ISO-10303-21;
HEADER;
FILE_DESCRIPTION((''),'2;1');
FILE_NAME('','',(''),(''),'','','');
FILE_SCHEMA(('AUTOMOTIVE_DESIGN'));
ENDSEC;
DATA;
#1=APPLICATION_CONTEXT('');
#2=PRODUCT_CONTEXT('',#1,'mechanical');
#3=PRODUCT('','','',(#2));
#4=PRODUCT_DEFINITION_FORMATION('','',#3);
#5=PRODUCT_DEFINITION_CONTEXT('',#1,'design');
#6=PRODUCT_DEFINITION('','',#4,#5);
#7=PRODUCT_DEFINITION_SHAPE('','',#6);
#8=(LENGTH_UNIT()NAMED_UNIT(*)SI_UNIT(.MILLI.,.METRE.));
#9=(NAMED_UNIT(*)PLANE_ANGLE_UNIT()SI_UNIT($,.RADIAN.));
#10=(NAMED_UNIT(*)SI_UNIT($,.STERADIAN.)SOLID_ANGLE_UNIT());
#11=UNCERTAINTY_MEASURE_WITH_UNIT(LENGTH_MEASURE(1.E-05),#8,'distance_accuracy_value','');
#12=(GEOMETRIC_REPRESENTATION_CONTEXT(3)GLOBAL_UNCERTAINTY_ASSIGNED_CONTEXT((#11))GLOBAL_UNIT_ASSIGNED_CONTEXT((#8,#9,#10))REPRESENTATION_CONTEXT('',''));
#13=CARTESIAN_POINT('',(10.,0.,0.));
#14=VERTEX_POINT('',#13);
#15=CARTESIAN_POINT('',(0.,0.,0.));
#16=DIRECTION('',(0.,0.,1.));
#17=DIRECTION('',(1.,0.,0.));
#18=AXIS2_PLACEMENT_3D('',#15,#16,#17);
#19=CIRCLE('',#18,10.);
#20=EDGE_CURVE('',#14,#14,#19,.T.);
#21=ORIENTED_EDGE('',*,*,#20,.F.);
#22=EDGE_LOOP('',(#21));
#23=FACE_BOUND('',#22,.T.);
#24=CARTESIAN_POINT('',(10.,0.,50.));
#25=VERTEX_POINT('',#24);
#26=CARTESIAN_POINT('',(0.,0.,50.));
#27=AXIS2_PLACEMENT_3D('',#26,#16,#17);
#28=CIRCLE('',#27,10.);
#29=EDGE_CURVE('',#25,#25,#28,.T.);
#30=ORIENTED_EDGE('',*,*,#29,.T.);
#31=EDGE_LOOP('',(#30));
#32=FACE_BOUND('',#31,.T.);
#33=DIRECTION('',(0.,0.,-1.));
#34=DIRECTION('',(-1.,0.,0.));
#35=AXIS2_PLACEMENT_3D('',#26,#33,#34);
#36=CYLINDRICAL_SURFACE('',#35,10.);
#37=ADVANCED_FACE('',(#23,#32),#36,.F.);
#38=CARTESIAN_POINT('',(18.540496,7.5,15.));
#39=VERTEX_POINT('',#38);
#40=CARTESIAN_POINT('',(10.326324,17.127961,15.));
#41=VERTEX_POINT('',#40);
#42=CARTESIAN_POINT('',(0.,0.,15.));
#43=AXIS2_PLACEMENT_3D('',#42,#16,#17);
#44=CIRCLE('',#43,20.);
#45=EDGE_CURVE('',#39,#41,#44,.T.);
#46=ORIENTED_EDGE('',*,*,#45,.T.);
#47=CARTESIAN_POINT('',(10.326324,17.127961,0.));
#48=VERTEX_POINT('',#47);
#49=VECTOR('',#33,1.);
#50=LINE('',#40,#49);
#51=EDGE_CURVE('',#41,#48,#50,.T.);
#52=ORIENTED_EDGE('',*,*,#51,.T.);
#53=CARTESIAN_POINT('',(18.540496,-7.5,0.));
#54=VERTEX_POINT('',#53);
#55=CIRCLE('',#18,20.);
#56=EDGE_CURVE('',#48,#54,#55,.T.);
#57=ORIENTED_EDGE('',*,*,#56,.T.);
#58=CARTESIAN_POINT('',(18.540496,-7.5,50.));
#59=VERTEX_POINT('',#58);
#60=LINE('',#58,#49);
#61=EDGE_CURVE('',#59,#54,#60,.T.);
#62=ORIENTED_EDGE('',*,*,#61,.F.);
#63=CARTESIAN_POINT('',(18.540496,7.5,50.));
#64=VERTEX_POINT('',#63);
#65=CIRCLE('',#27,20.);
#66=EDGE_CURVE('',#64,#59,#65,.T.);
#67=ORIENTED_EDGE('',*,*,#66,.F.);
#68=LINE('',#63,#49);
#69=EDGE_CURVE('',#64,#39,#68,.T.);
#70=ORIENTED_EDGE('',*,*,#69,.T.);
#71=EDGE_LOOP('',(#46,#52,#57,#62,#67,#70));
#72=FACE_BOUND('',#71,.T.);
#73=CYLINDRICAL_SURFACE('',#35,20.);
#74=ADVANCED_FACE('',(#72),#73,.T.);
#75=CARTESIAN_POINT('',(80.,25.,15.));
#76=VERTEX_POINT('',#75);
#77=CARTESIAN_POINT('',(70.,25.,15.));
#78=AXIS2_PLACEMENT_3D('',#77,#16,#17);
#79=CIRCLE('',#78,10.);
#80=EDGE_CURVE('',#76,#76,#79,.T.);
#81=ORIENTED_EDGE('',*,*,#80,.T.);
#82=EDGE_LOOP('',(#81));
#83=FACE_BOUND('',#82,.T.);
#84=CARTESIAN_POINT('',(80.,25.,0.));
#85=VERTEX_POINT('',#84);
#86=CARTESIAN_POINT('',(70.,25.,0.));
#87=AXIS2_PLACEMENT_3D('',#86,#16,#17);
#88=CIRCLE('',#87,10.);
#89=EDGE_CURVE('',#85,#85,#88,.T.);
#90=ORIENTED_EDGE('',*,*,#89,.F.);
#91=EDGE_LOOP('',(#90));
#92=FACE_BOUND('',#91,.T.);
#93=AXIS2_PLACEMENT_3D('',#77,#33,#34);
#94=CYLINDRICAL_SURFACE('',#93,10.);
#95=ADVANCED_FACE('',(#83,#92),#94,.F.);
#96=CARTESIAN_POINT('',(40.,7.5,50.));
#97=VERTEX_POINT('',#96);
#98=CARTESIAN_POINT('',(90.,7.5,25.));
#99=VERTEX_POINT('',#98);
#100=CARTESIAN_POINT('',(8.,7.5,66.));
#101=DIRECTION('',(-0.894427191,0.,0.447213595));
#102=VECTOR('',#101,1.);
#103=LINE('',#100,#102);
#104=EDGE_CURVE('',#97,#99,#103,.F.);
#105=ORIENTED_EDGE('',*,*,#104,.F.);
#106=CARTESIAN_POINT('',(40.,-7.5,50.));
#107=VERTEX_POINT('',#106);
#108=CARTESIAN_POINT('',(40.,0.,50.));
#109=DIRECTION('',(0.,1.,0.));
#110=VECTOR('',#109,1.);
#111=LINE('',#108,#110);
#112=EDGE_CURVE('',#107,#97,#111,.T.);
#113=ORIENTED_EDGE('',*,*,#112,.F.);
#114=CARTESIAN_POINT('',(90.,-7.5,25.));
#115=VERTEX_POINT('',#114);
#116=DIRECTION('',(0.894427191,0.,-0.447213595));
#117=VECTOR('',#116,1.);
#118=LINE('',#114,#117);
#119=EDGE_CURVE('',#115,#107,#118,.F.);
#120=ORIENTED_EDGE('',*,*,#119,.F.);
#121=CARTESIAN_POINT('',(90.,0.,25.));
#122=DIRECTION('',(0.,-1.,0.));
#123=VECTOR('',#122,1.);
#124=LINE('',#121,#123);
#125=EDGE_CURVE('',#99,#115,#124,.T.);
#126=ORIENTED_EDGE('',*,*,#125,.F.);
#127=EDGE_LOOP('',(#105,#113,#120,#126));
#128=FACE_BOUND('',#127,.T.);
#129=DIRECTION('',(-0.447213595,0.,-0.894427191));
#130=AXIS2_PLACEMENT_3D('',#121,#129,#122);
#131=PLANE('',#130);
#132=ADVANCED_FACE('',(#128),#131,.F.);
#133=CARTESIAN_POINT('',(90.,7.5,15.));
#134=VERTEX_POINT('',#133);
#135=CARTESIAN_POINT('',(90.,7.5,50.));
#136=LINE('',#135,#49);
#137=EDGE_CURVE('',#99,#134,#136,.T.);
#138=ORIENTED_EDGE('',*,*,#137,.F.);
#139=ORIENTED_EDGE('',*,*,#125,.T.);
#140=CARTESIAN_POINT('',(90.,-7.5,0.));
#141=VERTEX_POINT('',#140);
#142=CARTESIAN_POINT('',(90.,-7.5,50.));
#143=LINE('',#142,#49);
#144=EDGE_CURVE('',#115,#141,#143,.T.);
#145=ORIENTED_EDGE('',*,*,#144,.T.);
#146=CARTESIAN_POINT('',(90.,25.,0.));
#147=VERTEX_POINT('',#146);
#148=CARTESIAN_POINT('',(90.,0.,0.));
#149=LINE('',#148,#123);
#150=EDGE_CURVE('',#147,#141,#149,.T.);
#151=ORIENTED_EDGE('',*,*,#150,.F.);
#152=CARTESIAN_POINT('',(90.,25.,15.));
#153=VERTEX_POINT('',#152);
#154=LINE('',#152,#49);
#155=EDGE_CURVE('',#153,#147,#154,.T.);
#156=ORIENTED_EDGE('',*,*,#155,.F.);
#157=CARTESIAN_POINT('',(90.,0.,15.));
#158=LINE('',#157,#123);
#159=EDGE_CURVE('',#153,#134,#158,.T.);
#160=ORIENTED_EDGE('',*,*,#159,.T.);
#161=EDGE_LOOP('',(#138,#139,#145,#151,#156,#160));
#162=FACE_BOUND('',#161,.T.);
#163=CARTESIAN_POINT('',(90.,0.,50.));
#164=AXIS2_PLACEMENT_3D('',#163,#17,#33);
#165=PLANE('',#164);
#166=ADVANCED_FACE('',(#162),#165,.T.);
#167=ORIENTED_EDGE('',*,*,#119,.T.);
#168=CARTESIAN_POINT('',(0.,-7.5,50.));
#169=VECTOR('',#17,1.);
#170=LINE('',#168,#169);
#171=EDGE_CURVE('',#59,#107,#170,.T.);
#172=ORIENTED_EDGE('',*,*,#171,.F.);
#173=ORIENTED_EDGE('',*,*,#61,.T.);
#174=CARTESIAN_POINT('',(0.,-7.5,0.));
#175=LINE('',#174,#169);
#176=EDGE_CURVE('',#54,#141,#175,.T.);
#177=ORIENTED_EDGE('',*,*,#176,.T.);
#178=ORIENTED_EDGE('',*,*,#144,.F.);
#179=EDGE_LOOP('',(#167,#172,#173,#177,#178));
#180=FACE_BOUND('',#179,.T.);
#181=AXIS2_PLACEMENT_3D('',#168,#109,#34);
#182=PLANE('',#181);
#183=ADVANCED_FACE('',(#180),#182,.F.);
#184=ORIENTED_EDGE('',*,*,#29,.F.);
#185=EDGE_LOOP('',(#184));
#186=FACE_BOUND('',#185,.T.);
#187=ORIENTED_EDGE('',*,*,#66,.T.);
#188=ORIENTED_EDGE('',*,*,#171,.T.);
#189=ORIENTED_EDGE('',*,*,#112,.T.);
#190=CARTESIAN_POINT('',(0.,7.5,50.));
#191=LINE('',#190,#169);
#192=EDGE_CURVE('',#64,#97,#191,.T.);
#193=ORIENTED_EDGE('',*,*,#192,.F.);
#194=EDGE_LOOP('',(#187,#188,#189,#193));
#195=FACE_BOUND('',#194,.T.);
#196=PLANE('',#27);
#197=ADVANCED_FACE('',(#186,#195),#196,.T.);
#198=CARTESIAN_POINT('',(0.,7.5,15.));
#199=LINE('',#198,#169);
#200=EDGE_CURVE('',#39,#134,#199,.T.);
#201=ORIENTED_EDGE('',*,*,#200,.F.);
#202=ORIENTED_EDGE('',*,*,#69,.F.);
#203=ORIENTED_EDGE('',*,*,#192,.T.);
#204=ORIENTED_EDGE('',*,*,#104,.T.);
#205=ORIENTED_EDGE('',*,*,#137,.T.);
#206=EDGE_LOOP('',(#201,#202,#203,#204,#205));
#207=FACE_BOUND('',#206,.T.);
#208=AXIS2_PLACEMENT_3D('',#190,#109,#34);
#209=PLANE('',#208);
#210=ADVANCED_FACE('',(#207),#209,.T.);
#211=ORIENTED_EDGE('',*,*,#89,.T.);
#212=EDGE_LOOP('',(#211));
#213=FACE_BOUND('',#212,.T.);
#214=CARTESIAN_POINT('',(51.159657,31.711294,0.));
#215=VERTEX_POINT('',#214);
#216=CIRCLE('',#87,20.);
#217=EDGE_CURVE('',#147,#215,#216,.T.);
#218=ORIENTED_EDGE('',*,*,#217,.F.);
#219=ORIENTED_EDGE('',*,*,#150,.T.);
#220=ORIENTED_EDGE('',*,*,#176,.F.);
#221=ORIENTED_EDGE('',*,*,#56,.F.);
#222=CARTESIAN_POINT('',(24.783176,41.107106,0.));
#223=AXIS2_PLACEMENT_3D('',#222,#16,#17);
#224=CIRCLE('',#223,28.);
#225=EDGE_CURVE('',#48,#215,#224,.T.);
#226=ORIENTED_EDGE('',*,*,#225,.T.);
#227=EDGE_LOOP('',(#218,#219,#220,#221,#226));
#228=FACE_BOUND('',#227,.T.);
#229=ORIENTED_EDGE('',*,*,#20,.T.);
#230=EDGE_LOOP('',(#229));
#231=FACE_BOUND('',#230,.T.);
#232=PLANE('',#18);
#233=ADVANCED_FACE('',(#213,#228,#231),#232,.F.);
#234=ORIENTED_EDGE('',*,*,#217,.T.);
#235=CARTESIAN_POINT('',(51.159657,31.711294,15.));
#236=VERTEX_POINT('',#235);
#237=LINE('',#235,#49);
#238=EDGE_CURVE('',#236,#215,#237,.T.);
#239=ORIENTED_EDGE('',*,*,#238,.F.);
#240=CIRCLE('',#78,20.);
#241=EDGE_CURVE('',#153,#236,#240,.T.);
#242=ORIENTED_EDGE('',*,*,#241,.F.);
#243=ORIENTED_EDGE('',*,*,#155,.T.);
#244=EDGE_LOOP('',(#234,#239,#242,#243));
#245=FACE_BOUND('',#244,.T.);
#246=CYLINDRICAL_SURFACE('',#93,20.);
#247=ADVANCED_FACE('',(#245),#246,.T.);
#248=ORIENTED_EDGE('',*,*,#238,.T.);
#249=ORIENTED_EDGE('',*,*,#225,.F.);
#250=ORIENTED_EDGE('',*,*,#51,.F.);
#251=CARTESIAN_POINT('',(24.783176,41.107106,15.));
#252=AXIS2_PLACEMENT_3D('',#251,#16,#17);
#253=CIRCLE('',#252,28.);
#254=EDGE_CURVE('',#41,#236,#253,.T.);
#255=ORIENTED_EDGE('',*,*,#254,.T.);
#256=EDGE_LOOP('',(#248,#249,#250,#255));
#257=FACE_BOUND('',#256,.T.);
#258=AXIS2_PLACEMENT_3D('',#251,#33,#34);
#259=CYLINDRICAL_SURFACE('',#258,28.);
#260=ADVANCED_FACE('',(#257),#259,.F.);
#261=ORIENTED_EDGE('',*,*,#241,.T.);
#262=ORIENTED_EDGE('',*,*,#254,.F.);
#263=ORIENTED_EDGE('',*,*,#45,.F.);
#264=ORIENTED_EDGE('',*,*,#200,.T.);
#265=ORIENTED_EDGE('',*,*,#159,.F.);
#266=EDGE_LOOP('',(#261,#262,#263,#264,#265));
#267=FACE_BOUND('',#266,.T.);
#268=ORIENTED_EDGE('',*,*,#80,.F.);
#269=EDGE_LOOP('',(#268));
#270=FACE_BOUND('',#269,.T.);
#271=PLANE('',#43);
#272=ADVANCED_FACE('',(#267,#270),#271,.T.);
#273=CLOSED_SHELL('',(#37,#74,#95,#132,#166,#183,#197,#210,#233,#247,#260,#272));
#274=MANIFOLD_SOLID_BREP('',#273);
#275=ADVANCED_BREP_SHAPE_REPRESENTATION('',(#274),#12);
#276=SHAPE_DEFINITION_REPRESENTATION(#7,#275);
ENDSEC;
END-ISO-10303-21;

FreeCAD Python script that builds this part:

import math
import FreeCAD as App
import Part
import Sketcher
from FreeCAD import Vector


def edges_at(feature, points):
    """Names of the edges that pass closest to the given points."""
    edges = feature.Shape.Edges
    near = lambda p: min(range(len(edges)), key=lambda i: edges[i].distToShape(Part.Vertex(*p))[0])
    return sorted({f"Edge{near(p) + 1}" for p in points})

doc = App.newDocument("Part")
body = doc.addObject("PartDesign::Body", "Body")

sketch1 = body.newObject("Sketcher::SketchObject", "Sketch")
sketch1.AttachmentSupport = (doc.getObject("XY_Plane"), [""])
sketch1.MapMode = "FlatFace"
sketch1.addGeometry(Part.LineSegment(Vector(90, -8, 0), Vector(90, 8, 0)), False)
sketch1.addGeometry(Part.LineSegment(Vector(90, 8, 0), Vector(19, 8, 0)), False)
sketch1.addGeometry(Part.ArcOfCircle(Part.Circle(Vector(0, 0, 0), Vector(0, 0, 1), 20), math.radians(22), math.radians(59)), False)
sketch1.addGeometry(Part.ArcOfCircle(Part.Circle(Vector(0, 0, 0), Vector(0, 0, 1), 20), math.radians(59), math.radians(338)), False)
sketch1.addGeometry(Part.LineSegment(Vector(19, -8, 0), Vector(90, -8, 0)), False)
sketch1.addGeometry(Part.Circle(Vector(0, 0, 0), Vector(0, 0, 1), 10), False)
sketch1.addConstraint(Sketcher.Constraint("Coincident", 0, 2, 1, 1))
sketch1.addConstraint(Sketcher.Constraint("Coincident", 1, 2, 2, 1))
sketch1.addConstraint(Sketcher.Constraint("Tangent", 2, 2, 3, 1))
sketch1.addConstraint(Sketcher.Constraint("Coincident", 3, 2, 4, 1))
sketch1.addConstraint(Sketcher.Constraint("Coincident", 4, 2, 0, 1))
sketch1.addConstraint(Sketcher.Constraint("Vertical", 0))
sketch1.addConstraint(Sketcher.Constraint("Horizontal", 1))
sketch1.addConstraint(Sketcher.Constraint("Horizontal", 4))
sketch1.addConstraint(Sketcher.Constraint("Coincident", 2, 3, -1, 1))
sketch1.addConstraint(Sketcher.Constraint("Coincident", 5, 3, -1, 1))
sketch1.addConstraint(Sketcher.Constraint("Equal", 2, 3))
sketch1.addConstraint(Sketcher.Constraint("Vertical", 1, 2, 3, 2))
sketch1.addConstraint(Sketcher.Constraint("Diameter", 5, 20.0))
sketch1.addConstraint(Sketcher.Constraint("Radius", 2, 20.0))
sketch1.addConstraint(Sketcher.Constraint("DistanceY", 0, 1, 0, 2, 15.0))
sketch1.addConstraint(Sketcher.Constraint("DistanceX", -1, 1, 0, 2, 90.0))
sketch1.addConstraint(Sketcher.Constraint("DistanceY", -1, 1, 2, 2, 17.127961))
pad1 = body.newObject("PartDesign::Pad", "Pad")
pad1.Profile = sketch1
pad1.Length = 50

sketch2 = body.newObject("Sketcher::SketchObject", "Sketch001")
sketch2.AttachmentSupport = (doc.getObject("XY_Plane"), [""])
sketch2.MapMode = "FlatFace"
sketch2.addGeometry(Part.LineSegment(Vector(90, 8, 0), Vector(90, 25, 0)), False)
sketch2.addGeometry(Part.ArcOfCircle(Part.Circle(Vector(70, 25, 0), Vector(0, 0, 1), 20), math.radians(0), math.radians(160)), False)
sketch2.addGeometry(Part.ArcOfCircle(Part.Circle(Vector(25, 41, 0), Vector(0, 0, 1), 28), math.radians(-121), math.radians(-20)), False)
sketch2.addGeometry(Part.ArcOfCircle(Part.Circle(Vector(0, 0, 0), Vector(0, 0, 1), 20), math.radians(22), math.radians(59)), False)
sketch2.addGeometry(Part.LineSegment(Vector(19, 8, 0), Vector(90, 8, 0)), False)
sketch2.addGeometry(Part.Circle(Vector(70, 25, 0), Vector(0, 0, 1), 10), False)
sketch2.addConstraint(Sketcher.Constraint("Tangent", 0, 2, 1, 1))
sketch2.addConstraint(Sketcher.Constraint("Tangent", 1, 2, 2, 2))
sketch2.addConstraint(Sketcher.Constraint("Tangent", 2, 1, 3, 2))
sketch2.addConstraint(Sketcher.Constraint("Coincident", 3, 1, 4, 1))
sketch2.addConstraint(Sketcher.Constraint("Coincident", 4, 2, 0, 1))
sketch2.addConstraint(Sketcher.Constraint("Vertical", 0))
sketch2.addConstraint(Sketcher.Constraint("Horizontal", 4))
sketch2.addConstraint(Sketcher.Constraint("Coincident", 3, 3, -1, 1))
sketch2.addConstraint(Sketcher.Constraint("Coincident", 5, 3, 1, 3))
sketch2.addConstraint(Sketcher.Constraint("Equal", 1, 3))
sketch2.addConstraint(Sketcher.Constraint("Diameter", 5, 20.0))
sketch2.addConstraint(Sketcher.Constraint("Radius", 1, 20.0))
sketch2.addConstraint(Sketcher.Constraint("Radius", 2, 28.0))
sketch2.addConstraint(Sketcher.Constraint("DistanceY", 0, 1, 0, 2, 17.5))
sketch2.addConstraint(Sketcher.Constraint("DistanceX", -1, 1, 1, 3, 70.0))
sketch2.addConstraint(Sketcher.Constraint("DistanceY", -1, 1, 1, 3, 25.0))
pad2 = body.newObject("PartDesign::Pad", "Pad001")
pad2.Profile = sketch2
pad2.Length = 15
doc.recompute()

chamfer = body.newObject("PartDesign::Chamfer", "Chamfer")
chamfer.Base = (pad2, edges_at(pad2, [(90, 0, 50)]))
chamfer.ChamferType = "Two distances"
chamfer.Size = 50
chamfer.Size2 = 25

doc.recompute()
